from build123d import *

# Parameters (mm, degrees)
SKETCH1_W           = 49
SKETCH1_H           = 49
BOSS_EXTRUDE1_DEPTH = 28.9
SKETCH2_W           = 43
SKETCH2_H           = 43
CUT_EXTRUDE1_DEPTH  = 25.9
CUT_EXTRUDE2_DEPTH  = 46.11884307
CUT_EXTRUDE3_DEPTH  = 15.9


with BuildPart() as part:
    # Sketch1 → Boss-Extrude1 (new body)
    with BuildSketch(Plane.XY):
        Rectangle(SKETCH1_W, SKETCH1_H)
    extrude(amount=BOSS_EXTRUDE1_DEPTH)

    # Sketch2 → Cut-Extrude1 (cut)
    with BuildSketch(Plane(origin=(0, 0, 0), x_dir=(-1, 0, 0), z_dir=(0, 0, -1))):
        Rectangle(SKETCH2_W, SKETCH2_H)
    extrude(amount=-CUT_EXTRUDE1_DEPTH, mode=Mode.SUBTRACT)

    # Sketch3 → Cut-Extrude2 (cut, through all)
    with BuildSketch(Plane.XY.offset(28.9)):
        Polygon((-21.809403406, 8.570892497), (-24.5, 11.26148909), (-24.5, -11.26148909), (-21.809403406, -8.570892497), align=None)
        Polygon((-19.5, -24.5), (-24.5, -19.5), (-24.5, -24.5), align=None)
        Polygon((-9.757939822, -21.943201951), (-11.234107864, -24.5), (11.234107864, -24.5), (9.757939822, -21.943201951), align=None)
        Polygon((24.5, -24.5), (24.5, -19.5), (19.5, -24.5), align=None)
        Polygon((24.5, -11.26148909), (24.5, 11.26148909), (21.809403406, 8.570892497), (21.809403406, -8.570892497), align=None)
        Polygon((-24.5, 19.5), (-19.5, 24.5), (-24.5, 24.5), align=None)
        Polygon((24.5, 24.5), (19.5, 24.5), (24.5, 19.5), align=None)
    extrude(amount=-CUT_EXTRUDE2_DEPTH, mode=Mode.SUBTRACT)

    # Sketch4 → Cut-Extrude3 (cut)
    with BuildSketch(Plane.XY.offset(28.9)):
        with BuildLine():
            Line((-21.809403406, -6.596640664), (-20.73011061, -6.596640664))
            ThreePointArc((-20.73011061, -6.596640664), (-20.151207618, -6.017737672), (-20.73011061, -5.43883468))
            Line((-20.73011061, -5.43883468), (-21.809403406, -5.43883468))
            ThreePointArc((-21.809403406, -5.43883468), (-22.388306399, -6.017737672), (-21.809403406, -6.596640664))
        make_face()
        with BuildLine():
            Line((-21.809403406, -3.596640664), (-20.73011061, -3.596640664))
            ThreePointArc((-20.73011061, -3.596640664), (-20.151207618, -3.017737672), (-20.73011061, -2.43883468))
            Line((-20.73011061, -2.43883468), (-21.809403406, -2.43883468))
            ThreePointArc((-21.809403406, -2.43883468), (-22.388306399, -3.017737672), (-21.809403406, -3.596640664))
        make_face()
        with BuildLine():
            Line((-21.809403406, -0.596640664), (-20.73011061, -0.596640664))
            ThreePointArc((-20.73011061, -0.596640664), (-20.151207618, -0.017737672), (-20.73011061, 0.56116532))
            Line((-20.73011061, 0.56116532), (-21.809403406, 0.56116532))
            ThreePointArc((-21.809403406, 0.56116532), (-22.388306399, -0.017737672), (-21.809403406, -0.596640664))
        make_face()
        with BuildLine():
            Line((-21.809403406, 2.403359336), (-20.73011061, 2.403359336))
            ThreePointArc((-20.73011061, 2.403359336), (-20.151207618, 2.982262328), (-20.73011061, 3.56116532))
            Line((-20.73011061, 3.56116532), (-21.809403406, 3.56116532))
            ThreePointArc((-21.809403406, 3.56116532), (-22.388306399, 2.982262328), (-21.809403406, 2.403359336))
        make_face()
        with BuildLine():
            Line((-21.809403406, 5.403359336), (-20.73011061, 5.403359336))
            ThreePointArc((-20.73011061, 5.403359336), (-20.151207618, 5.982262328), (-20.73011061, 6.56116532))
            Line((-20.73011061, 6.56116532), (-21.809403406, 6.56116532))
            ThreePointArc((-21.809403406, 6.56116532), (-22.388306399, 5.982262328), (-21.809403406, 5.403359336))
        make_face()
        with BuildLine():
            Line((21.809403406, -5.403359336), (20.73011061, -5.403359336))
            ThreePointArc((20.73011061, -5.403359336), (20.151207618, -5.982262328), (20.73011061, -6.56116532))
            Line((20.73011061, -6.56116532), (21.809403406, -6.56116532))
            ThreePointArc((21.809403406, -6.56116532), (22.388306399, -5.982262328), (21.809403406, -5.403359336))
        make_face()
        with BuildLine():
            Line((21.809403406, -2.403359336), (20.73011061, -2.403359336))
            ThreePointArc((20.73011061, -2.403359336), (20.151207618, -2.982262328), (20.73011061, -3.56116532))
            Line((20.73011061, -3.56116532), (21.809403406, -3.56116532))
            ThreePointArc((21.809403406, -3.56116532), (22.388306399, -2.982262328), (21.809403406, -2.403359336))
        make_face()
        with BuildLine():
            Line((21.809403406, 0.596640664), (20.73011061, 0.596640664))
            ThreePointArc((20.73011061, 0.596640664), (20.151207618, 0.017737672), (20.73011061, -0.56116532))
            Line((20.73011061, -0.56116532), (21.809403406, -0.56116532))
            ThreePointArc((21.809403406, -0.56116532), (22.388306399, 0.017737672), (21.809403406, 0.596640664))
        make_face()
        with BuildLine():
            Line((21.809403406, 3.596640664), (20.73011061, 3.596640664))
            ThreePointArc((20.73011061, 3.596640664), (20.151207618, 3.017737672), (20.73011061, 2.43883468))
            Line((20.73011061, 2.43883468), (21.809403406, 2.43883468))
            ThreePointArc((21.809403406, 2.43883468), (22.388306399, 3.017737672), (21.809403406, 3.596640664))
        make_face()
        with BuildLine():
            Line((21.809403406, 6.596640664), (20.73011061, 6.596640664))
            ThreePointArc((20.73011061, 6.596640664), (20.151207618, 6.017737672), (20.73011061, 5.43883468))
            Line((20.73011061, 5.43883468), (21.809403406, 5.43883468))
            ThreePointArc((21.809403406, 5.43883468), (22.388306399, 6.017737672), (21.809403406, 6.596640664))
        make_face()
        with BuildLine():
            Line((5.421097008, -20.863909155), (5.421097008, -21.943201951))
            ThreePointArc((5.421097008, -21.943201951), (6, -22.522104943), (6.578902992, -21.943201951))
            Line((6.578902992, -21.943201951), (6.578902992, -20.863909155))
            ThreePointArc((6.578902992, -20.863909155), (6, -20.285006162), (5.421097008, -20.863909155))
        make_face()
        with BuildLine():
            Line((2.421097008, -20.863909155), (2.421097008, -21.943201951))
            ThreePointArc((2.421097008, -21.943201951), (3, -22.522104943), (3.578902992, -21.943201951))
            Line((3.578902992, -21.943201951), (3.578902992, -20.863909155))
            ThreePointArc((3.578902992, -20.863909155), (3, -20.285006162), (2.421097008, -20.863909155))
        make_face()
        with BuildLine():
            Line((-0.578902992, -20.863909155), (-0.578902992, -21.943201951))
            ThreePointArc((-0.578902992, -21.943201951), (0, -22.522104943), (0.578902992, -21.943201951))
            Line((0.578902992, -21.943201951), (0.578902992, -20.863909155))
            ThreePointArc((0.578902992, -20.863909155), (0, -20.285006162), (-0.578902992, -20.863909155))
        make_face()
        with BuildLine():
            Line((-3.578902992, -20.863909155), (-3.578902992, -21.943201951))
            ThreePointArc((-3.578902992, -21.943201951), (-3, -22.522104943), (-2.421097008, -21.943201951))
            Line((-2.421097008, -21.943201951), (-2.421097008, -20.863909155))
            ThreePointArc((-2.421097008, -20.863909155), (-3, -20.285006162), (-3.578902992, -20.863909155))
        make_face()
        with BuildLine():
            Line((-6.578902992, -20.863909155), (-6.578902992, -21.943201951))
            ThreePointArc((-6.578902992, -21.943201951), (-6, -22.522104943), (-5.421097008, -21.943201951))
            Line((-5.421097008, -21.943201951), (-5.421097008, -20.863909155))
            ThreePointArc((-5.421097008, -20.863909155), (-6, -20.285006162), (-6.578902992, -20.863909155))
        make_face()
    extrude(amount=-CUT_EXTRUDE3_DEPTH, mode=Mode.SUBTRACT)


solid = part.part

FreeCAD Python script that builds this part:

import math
import FreeCAD as App
import Part
import Sketcher
from FreeCAD import Vector
Q = App.Units.Quantity


def add_polygon(sketch, points):
    """Adds a closed chain of lines whose ends are joined by coincident constraints."""
    first, n = sketch.GeometryCount, len(points)
    for a, b in zip(points, points[1:] + points[:1]):
        sketch.addGeometry(Part.LineSegment(App.Vector(*a, 0), App.Vector(*b, 0)), False)
    for i in range(n):
        sketch.addConstraint(Sketcher.Constraint("Coincident", first + i, 2, first + (i + 1) % n, 1))

doc = App.newDocument("Part")
params = doc.addObject("Spreadsheet::Sheet", "Params")
for row, (alias, value) in enumerate([
    ("sketch1_width", "49 mm"),
    ("pad1_length", "28.9 mm"),
    ("sketch2_width", "43 mm"),
    ("pocket1_length", "25.9 mm"),
    ("sketch3_width", "5 mm"),
    ("pocket3_length", "15.9 mm"),
], start=1):
    params.set(f"A{row}", alias)
    params.set(f"B{row}", "=" + value)
    params.setAlias(f"B{row}", alias)

body = doc.addObject("PartDesign::Body", "Body")

# Sketch on XY plane
sketch1 = body.newObject("Sketcher::SketchObject", "Sketch")
sketch1.AttachmentSupport = (doc.getObject("XY_Plane"), [""])
sketch1.MapMode = "FlatFace"
add_polygon(sketch1, [(-24, 24), (-24, -24), (24, -24), (24, 24)])  # lines 0-3
sketch1.addConstraint(Sketcher.Constraint("Vertical", 0))
sketch1.addConstraint(Sketcher.Constraint("Horizontal", 1))
sketch1.addConstraint(Sketcher.Constraint("Vertical", 2))
sketch1.addConstraint(Sketcher.Constraint("Horizontal", 3))
sketch1.addConstraint(Sketcher.Constraint("Symmetric", 0, 2, 2, 2, -1, 1))
sketch1.addConstraint(Sketcher.Constraint("Equal", 3, 0))
sketch1.addConstraint(Sketcher.Constraint("DistanceX", 1, 1, 1, 2, Q("49 mm")))
sketch1.setExpression("Constraints[10]", "Params.sketch1_width")
pad1 = body.newObject("PartDesign::Pad", "Pad")
pad1.Profile = sketch1
pad1.setExpression("Length", "Params.pad1_length")

# Sketch on XY plane
sketch2 = body.newObject("Sketcher::SketchObject", "Sketch001")
sketch2.AttachmentSupport = (doc.getObject("XY_Plane"), [""])
sketch2.MapMode = "FlatFace"
add_polygon(sketch2, [(22, 22), (22, -22), (-22, -22), (-22, 22)])  # lines 0-3
sketch2.addConstraint(Sketcher.Constraint("Vertical", 0))
sketch2.addConstraint(Sketcher.Constraint("Horizontal", 1))
sketch2.addConstraint(Sketcher.Constraint("Vertical", 2))
sketch2.addConstraint(Sketcher.Constraint("Horizontal", 3))
sketch2.addConstraint(Sketcher.Constraint("Symmetric", 0, 2, 2, 2, -1, 1))
sketch2.addConstraint(Sketcher.Constraint("Equal", 3, 0))
sketch2.addConstraint(Sketcher.Constraint("DistanceX", 1, 2, 1, 1, Q("43 mm")))
sketch2.setExpression("Constraints[10]", "Params.sketch2_width")
pocket1 = body.newObject("PartDesign::Pocket", "Pocket")
pocket1.Profile = sketch2
pocket1.setExpression("Length", "Params.pocket1_length")
pocket1.Reversed = True

# Sketch on XY plane
sketch3 = body.newObject("Sketcher::SketchObject", "Sketch002")
sketch3.AttachmentSupport = (doc.getObject("XY_Plane"), [""])
sketch3.MapMode = "FlatFace"
sketch3.AttachmentOffset = App.Placement(Vector(0, 0, 28.9), App.Rotation())
add_polygon(sketch3, [(-21.8, 8.6), (-24.5, 11.3), (-24.5, -11.3), (-21.8, -8.6)])  # lines 0-3
add_polygon(sketch3, [(-19.5, -24.5), (-24.5, -19.5), (-24.5, -24.5)])  # lines 4-6
add_polygon(sketch3, [(-9.8, -21.9), (-11.2, -24.5), (11.2, -24.5), (9.8, -21.9)])  # lines 7-10
add_polygon(sketch3, [(24.5, -24.5), (24.5, -19.5), (19.5, -24.5)])  # lines 11-13
add_polygon(sketch3, [(24.5, -11.3), (24.5, 11.3), (21.8, 8.6), (21.8, -8.6)])  # lines 14-17
add_polygon(sketch3, [(-24.5, 19.5), (-19.5, 24.5), (-24.5, 24.5)])  # lines 18-20
add_polygon(sketch3, [(24.5, 24.5), (19.5, 24.5), (24.5, 19.5)])  # lines 21-23
sketch3.addConstraint(Sketcher.Constraint("Vertical", 1))
sketch3.addConstraint(Sketcher.Constraint("Vertical", 3))
sketch3.addConstraint(Sketcher.Constraint("Vertical", 5))
sketch3.addConstraint(Sketcher.Constraint("Horizontal", 6))
sketch3.addConstraint(Sketcher.Constraint("Horizontal", 8))
sketch3.addConstraint(Sketcher.Constraint("Horizontal", 10))
sketch3.addConstraint(Sketcher.Constraint("Vertical", 11))
sketch3.addConstraint(Sketcher.Constraint("Horizontal", 13))
sketch3.addConstraint(Sketcher.Constraint("Vertical", 14))
sketch3.addConstraint(Sketcher.Constraint("Vertical", 16))
sketch3.addConstraint(Sketcher.Constraint("Horizontal", 19))
sketch3.addConstraint(Sketcher.Constraint("Vertical", 20))
sketch3.addConstraint(Sketcher.Constraint("Horizontal", 21))
sketch3.addConstraint(Sketcher.Constraint("Vertical", 23))
sketch3.addConstraint(Sketcher.Constraint("Symmetric", 1, 2, 14, 2, -1, 1))
sketch3.addConstraint(Sketcher.Constraint("Symmetric", 2, 2, 15, 2, -1, 1))
sketch3.addConstraint(Sketcher.Constraint("Symmetric", 12, 2, 18, 2, -1, 1))
sketch3.addConstraint(Sketcher.Constraint("Symmetric", 11, 2, 20, 2, -1, 1))
sketch3.addConstraint(Sketcher.Constraint("Symmetric", 6, 2, 21, 2, -1, 1))
sketch3.addConstraint(Sketcher.Constraint("Symmetric", 4, 2, 22, 2, -1, 1))
sketch3.addConstraint(Sketcher.Constraint("Symmetric", 4, 2, 11, 2, -2))
sketch3.addConstraint(Sketcher.Constraint("Symmetric", 6, 2, 12, 2, -2))
sketch3.addConstraint(Sketcher.Constraint("Perpendicular", 0, 2))
sketch3.addConstraint(Sketcher.Constraint("Perpendicular", 2, 4))
sketch3.addConstraint(Sketcher.Constraint("Perpendicular", 4, 12))
sketch3.addConstraint(Sketcher.Constraint("Perpendicular", 15, 17))
sketch3.addConstraint(Sketcher.Constraint("Horizontal", 6, 2, 7, 2))
sketch3.addConstraint(Sketcher.Constraint("Horizontal", 0, 2, 14, 2))
sketch3.addConstraint(Sketcher.Constraint("Horizontal", 2, 2, 16, 2))
sketch3.addConstraint(Sketcher.Constraint("Vertical", 1, 2, 4, 2))
sketch3.addConstraint(Sketcher.Constraint("Equal", 7, 9))
sketch3.addConstraint(Sketcher.Constraint("DistanceX", 6, 1, 6, 2, Q("5 mm")))
sketch3.addConstraint(Sketcher.Constraint("Angle", 7, Q("-120 deg")))
sketch3.addConstraint(Sketcher.Constraint("DistanceX", 6, 2, 11, 2, Q("44 mm")))
sketch3.addConstraint(Sketcher.Constraint("DistanceY", 4, 2, -1, 1, Q("19.5 mm")))
sketch3.addConstraint(Sketcher.Constraint("DistanceX", 10, 2, 10, 1, Q("19.51588 mm")))
sketch3.addConstraint(Sketcher.Constraint("DistanceY", 1, 2, 1, 1, Q("22.522978 mm")))
sketch3.addConstraint(Sketcher.Constraint("DistanceY", 9, 2, -1, 1, Q("21.943202 mm")))
sketch3.addConstraint(Sketcher.Constraint("Distance", 0, Q("3.805078 mm")))
sketch3.addConstraint(Sketcher.Constraint("DistanceX", -1, 1, 9, 2, Q("9.75794 mm")))
sketch3.setExpression("Constraints[55]", "Params.sketch3_width")
pocket2 = body.newObject("PartDesign::Pocket", "Pocket001")
pocket2.Profile = sketch3
pocket2.Type = "ThroughAll"

# Sketch on XY plane
sketch4 = body.newObject("Sketcher::SketchObject", "Sketch003")
sketch4.AttachmentSupport = (doc.getObject("XY_Plane"), [""])
sketch4.MapMode = "FlatFace"
sketch4.AttachmentOffset = App.Placement(Vector(0, 0, 28.9), App.Rotation())
sketch4.addGeometry(Part.LineSegment(Vector(-21.8, -6.6, 0), Vector(-20.7, -6.6, 0)), False)
sketch4.addGeometry(Part.ArcOfCircle(Part.Circle(Vector(-20.7, -6, 0), Vector(0, 0, 1), 0.6), math.radians(-90), math.radians(90)), False)
sketch4.addGeometry(Part.LineSegment(Vector(-20.7, -5.4, 0), Vector(-21.8, -5.4, 0)), False)
sketch4.addGeometry(Part.ArcOfCircle(Part.Circle(Vector(-21.8, -6, 0), Vector(0, 0, 1), 0.6), math.radians(90), math.radians(270)), False)
sketch4.addGeometry(Part.LineSegment(Vector(-21.8, -3.6, 0), Vector(-20.7, -3.6, 0)), False)
sketch4.addGeometry(Part.ArcOfCircle(Part.Circle(Vector(-20.7, -3, 0), Vector(0, 0, 1), 0.6), math.radians(-90), math.radians(90)), False)
sketch4.addGeometry(Part.LineSegment(Vector(-20.7, -2.4, 0), Vector(-21.8, -2.4, 0)), False)
sketch4.addGeometry(Part.ArcOfCircle(Part.Circle(Vector(-21.8, -3, 0), Vector(0, 0, 1), 0.6), math.radians(90), math.radians(270)), False)
sketch4.addGeometry(Part.LineSegment(Vector(-21.8, -0.6, 0), Vector(-20.7, -0.6, 0)), False)
sketch4.addGeometry(Part.ArcOfCircle(Part.Circle(Vector(-20.7, 0, 0), Vector(0, 0, 1), 0.6), math.radians(-90), math.radians(90)), False)
sketch4.addGeometry(Part.LineSegment(Vector(-20.7, 0.6, 0), Vector(-21.8, 0.6, 0)), False)
sketch4.addGeometry(Part.ArcOfCircle(Part.Circle(Vector(-21.8, 0, 0), Vector(0, 0, 1), 0.6), math.radians(90), math.radians(270)), False)
sketch4.addGeometry(Part.LineSegment(Vector(-21.8, 2.4, 0), Vector(-20.7, 2.4, 0)), False)
sketch4.addGeometry(Part.ArcOfCircle(Part.Circle(Vector(-20.7, 3, 0), Vector(0, 0, 1), 0.6), math.radians(-90), math.radians(90)), False)
sketch4.addGeometry(Part.LineSegment(Vector(-20.7, 3.6, 0), Vector(-21.8, 3.6, 0)), False)
sketch4.addGeometry(Part.ArcOfCircle(Part.Circle(Vector(-21.8, 3, 0), Vector(0, 0, 1), 0.6), math.radians(90), math.radians(270)), False)
sketch4.addGeometry(Part.LineSegment(Vector(-21.8, 5.4, 0), Vector(-20.7, 5.4, 0)), False)
sketch4.addGeometry(Part.ArcOfCircle(Part.Circle(Vector(-20.7, 6, 0), Vector(0, 0, 1), 0.6), math.radians(-90), math.radians(90)), False)
sketch4.addGeometry(Part.LineSegment(Vector(-20.7, 6.6, 0), Vector(-21.8, 6.6, 0)), False)
sketch4.addGeometry(Part.ArcOfCircle(Part.Circle(Vector(-21.8, 6, 0), Vector(0, 0, 1), 0.6), math.radians(90), math.radians(270)), False)
sketch4.addGeometry(Part.LineSegment(Vector(21.8, -5.4, 0), Vector(20.7, -5.4, 0)), False)
sketch4.addGeometry(Part.ArcOfCircle(Part.Circle(Vector(20.7, -6, 0), Vector(0, 0, 1), 0.6), math.radians(90), math.radians(270)), False)
sketch4.addGeometry(Part.LineSegment(Vector(20.7, -6.6, 0), Vector(21.8, -6.6, 0)), False)
sketch4.addGeometry(Part.ArcOfCircle(Part.Circle(Vector(21.8, -6, 0), Vector(0, 0, 1), 0.6), math.radians(-90), math.radians(90)), False)
sketch4.addGeometry(Part.LineSegment(Vector(21.8, -2.4, 0), Vector(20.7, -2.4, 0)), False)
sketch4.addGeometry(Part.ArcOfCircle(Part.Circle(Vector(20.7, -3, 0), Vector(0, 0, 1), 0.6), math.radians(90), math.radians(270)), False)
sketch4.addGeometry(Part.LineSegment(Vector(20.7, -3.6, 0), Vector(21.8, -3.6, 0)), False)
sketch4.addGeometry(Part.ArcOfCircle(Part.Circle(Vector(21.8, -3, 0), Vector(0, 0, 1), 0.6), math.radians(-90), math.radians(90)), False)
sketch4.addGeometry(Part.LineSegment(Vector(21.8, 0.6, 0), Vector(20.7, 0.6, 0)), False)
sketch4.addGeometry(Part.ArcOfCircle(Part.Circle(Vector(20.7, 0, 0), Vector(0, 0, 1), 0.6), math.radians(90), math.radians(270)), False)
sketch4.addGeometry(Part.LineSegment(Vector(20.7, -0.6, 0), Vector(21.8, -0.6, 0)), False)
sketch4.addGeometry(Part.ArcOfCircle(Part.Circle(Vector(21.8, 0, 0), Vector(0, 0, 1), 0.6), math.radians(-90), math.radians(90)), False)
sketch4.addGeometry(Part.LineSegment(Vector(21.8, 3.6, 0), Vector(20.7, 3.6, 0)), False)
sketch4.addGeometry(Part.ArcOfCircle(Part.Circle(Vector(20.7, 3, 0), Vector(0, 0, 1), 0.6), math.radians(90), math.radians(270)), False)
sketch4.addGeometry(Part.LineSegment(Vector(20.7, 2.4, 0), Vector(21.8, 2.4, 0)), False)
sketch4.addGeometry(Part.ArcOfCircle(Part.Circle(Vector(21.8, 3, 0), Vector(0, 0, 1), 0.6), math.radians(-90), math.radians(90)), False)
sketch4.addGeometry(Part.LineSegment(Vector(21.8, 6.6, 0), Vector(20.7, 6.6, 0)), False)
sketch4.addGeometry(Part.ArcOfCircle(Part.Circle(Vector(20.7, 6, 0), Vector(0, 0, 1), 0.6), math.radians(90), math.radians(270)), False)
sketch4.addGeometry(Part.LineSegment(Vector(20.7, 5.4, 0), Vector(21.8, 5.4, 0)), False)
sketch4.addGeometry(Part.ArcOfCircle(Part.Circle(Vector(21.8, 6, 0), Vector(0, 0, 1), 0.6), math.radians(-90), math.radians(90)), False)
sketch4.addGeometry(Part.LineSegment(Vector(5.4, -20.9, 0), Vector(5.4, -21.9, 0)), False)
sketch4.addGeometry(Part.ArcOfCircle(Part.Circle(Vector(6, -21.9, 0), Vector(0, 0, 1), 0.6), math.radians(180), math.radians(360)), False)
sketch4.addGeometry(Part.LineSegment(Vector(6.6, -21.9, 0), Vector(6.6, -20.9, 0)), False)
sketch4.addGeometry(Part.ArcOfCircle(Part.Circle(Vector(6, -20.9, 0), Vector(0, 0, 1), 0.6), math.radians(0), math.radians(180)), False)
sketch4.addGeometry(Part.LineSegment(Vector(2.4, -20.9, 0), Vector(2.4, -21.9, 0)), False)
sketch4.addGeometry(Part.ArcOfCircle(Part.Circle(Vector(3, -21.9, 0), Vector(0, 0, 1), 0.6), math.radians(180), math.radians(360)), False)
sketch4.addGeometry(Part.LineSegment(Vector(3.6, -21.9, 0), Vector(3.6, -20.9, 0)), False)
sketch4.addGeometry(Part.ArcOfCircle(Part.Circle(Vector(3, -20.9, 0), Vector(0, 0, 1), 0.6), math.radians(0), math.radians(180)), False)
sketch4.addGeometry(Part.LineSegment(Vector(-0.6, -20.9, 0), Vector(-0.6, -21.9, 0)), False)
sketch4.addGeometry(Part.ArcOfCircle(Part.Circle(Vector(0, -21.9, 0), Vector(0, 0, 1), 0.6), math.radians(180), math.radians(360)), False)
sketch4.addGeometry(Part.LineSegment(Vector(0.6, -21.9, 0), Vector(0.6, -20.9, 0)), False)
sketch4.addGeometry(Part.ArcOfCircle(Part.Circle(Vector(0, -20.9, 0), Vector(0, 0, 1), 0.6), math.radians(0), math.radians(180)), False)
sketch4.addGeometry(Part.LineSegment(Vector(-3.6, -20.9, 0), Vector(-3.6, -21.9, 0)), False)
sketch4.addGeometry(Part.ArcOfCircle(Part.Circle(Vector(-3, -21.9, 0), Vector(0, 0, 1), 0.6), math.radians(180), math.radians(360)), False)
sketch4.addGeometry(Part.LineSegment(Vector(-2.4, -21.9, 0), Vector(-2.4, -20.9, 0)), False)
sketch4.addGeometry(Part.ArcOfCircle(Part.Circle(Vector(-3, -20.9, 0), Vector(0, 0, 1), 0.6), math.radians(0), math.radians(180)), False)
sketch4.addGeometry(Part.LineSegment(Vector(-6.6, -20.9, 0), Vector(-6.6, -21.9, 0)), False)
sketch4.addGeometry(Part.ArcOfCircle(Part.Circle(Vector(-6, -21.9, 0), Vector(0, 0, 1), 0.6), math.radians(180), math.radians(360)), False)
sketch4.addGeometry(Part.LineSegment(Vector(-5.4, -21.9, 0), Vector(-5.4, -20.9, 0)), False)
sketch4.addGeometry(Part.ArcOfCircle(Part.Circle(Vector(-6, -20.9, 0), Vector(0, 0, 1), 0.6), math.radians(0), math.radians(180)), False)
sketch4.addConstraint(Sketcher.Constraint("Tangent", 0, 2, 1, 1))
sketch4.addConstraint(Sketcher.Constraint("Tangent", 1, 2, 2, 1))
sketch4.addConstraint(Sketcher.Constraint("Tangent", 2, 2, 3, 1))
sketch4.addConstraint(Sketcher.Constraint("Tangent", 3, 2, 0, 1))
sketch4.addConstraint(Sketcher.Constraint("Tangent", 4, 2, 5, 1))
sketch4.addConstraint(Sketcher.Constraint("Tangent", 5, 2, 6, 1))
sketch4.addConstraint(Sketcher.Constraint("Tangent", 6, 2, 7, 1))
sketch4.addConstraint(Sketcher.Constraint("Tangent", 7, 2, 4, 1))
sketch4.addConstraint(Sketcher.Constraint("Tangent", 8, 2, 9, 1))
sketch4.addConstraint(Sketcher.Constraint("Tangent", 9, 2, 10, 1))
sketch4.addConstraint(Sketcher.Constraint("Tangent", 10, 2, 11, 1))
sketch4.addConstraint(Sketcher.Constraint("Tangent", 11, 2, 8, 1))
sketch4.addConstraint(Sketcher.Constraint("Tangent", 12, 2, 13, 1))
sketch4.addConstraint(Sketcher.Constraint("Tangent", 13, 2, 14, 1))
sketch4.addConstraint(Sketcher.Constraint("Tangent", 14, 2, 15, 1))
sketch4.addConstraint(Sketcher.Constraint("Tangent", 15, 2, 12, 1))
sketch4.addConstraint(Sketcher.Constraint("Tangent", 16, 2, 17, 1))
sketch4.addConstraint(Sketcher.Constraint("Tangent", 17, 2, 18, 1))
sketch4.addConstraint(Sketcher.Constraint("Tangent", 18, 2, 19, 1))
sketch4.addConstraint(Sketcher.Constraint("Tangent", 19, 2, 16, 1))
sketch4.addConstraint(Sketcher.Constraint("Tangent", 20, 2, 21, 1))
sketch4.addConstraint(Sketcher.Constraint("Tangent", 21, 2, 22, 1))
sketch4.addConstraint(Sketcher.Constraint("Tangent", 22, 2, 23, 1))
sketch4.addConstraint(Sketcher.Constraint("Tangent", 23, 2, 20, 1))
sketch4.addConstraint(Sketcher.Constraint("Tangent", 24, 2, 25, 1))
sketch4.addConstraint(Sketcher.Constraint("Tangent", 25, 2, 26, 1))
sketch4.addConstraint(Sketcher.Constraint("Tangent", 26, 2, 27, 1))
sketch4.addConstraint(Sketcher.Constraint("Tangent", 27, 2, 24, 1))
sketch4.addConstraint(Sketcher.Constraint("Tangent", 28, 2, 29, 1))
sketch4.addConstraint(Sketcher.Constraint("Tangent", 29, 2, 30, 1))
sketch4.addConstraint(Sketcher.Constraint("Tangent", 30, 2, 31, 1))
sketch4.addConstraint(Sketcher.Constraint("Tangent", 31, 2, 28, 1))
sketch4.addConstraint(Sketcher.Constraint("Tangent", 32, 2, 33, 1))
sketch4.addConstraint(Sketcher.Constraint("Tangent", 33, 2, 34, 1))
sketch4.addConstraint(Sketcher.Constraint("Tangent", 34, 2, 35, 1))
sketch4.addConstraint(Sketcher.Constraint("Tangent", 35, 2, 32, 1))
sketch4.addConstraint(Sketcher.Constraint("Tangent", 36, 2, 37, 1))
sketch4.addConstraint(Sketcher.Constraint("Tangent", 37, 2, 38, 1))
sketch4.addConstraint(Sketcher.Constraint("Tangent", 38, 2, 39, 1))
sketch4.addConstraint(Sketcher.Constraint("Tangent", 39, 2, 36, 1))
sketch4.addConstraint(Sketcher.Constraint("Tangent", 40, 2, 41, 1))
sketch4.addConstraint(Sketcher.Constraint("Tangent", 41, 2, 42, 1))
sketch4.addConstraint(Sketcher.Constraint("Tangent", 42, 2, 43, 1))
sketch4.addConstraint(Sketcher.Constraint("Tangent", 43, 2, 40, 1))
sketch4.addConstraint(Sketcher.Constraint("Tangent", 44, 2, 45, 1))
sketch4.addConstraint(Sketcher.Constraint("Tangent", 45, 2, 46, 1))
sketch4.addConstraint(Sketcher.Constraint("Tangent", 46, 2, 47, 1))
sketch4.addConstraint(Sketcher.Constraint("Tangent", 47, 2, 44, 1))
sketch4.addConstraint(Sketcher.Constraint("Tangent", 48, 2, 49, 1))
sketch4.addConstraint(Sketcher.Constraint("Tangent", 49, 2, 50, 1))
sketch4.addConstraint(Sketcher.Constraint("Tangent", 50, 2, 51, 1))
sketch4.addConstraint(Sketcher.Constraint("Tangent", 51, 2, 48, 1))
sketch4.addConstraint(Sketcher.Constraint("Tangent", 52, 2, 53, 1))
sketch4.addConstraint(Sketcher.Constraint("Tangent", 53, 2, 54, 1))
sketch4.addConstraint(Sketcher.Constraint("Tangent", 54, 2, 55, 1))
sketch4.addConstraint(Sketcher.Constraint("Tangent", 55, 2, 52, 1))
sketch4.addConstraint(Sketcher.Constraint("Tangent", 56, 2, 57, 1))
sketch4.addConstraint(Sketcher.Constraint("Tangent", 57, 2, 58, 1))
sketch4.addConstraint(Sketcher.Constraint("Tangent", 58, 2, 59, 1))
sketch4.addConstraint(Sketcher.Constraint("Tangent", 59, 2, 56, 1))
sketch4.addConstraint(Sketcher.Constraint("Horizontal", 0))
sketch4.addConstraint(Sketcher.Constraint("Horizontal", 2))
sketch4.addConstraint(Sketcher.Constraint("Horizontal", 4))
sketch4.addConstraint(Sketcher.Constraint("Horizontal", 6))
sketch4.addConstraint(Sketcher.Constraint("Horizontal", 8))
sketch4.addConstraint(Sketcher.Constraint("Horizontal", 10))
sketch4.addConstraint(Sketcher.Constraint("Horizontal", 12))
sketch4.addConstraint(Sketcher.Constraint("Horizontal", 14))
sketch4.addConstraint(Sketcher.Constraint("Horizontal", 16))
sketch4.addConstraint(Sketcher.Constraint("Horizontal", 18))
sketch4.addConstraint(Sketcher.Constraint("Horizontal", 20))
sketch4.addConstraint(Sketcher.Constraint("Horizontal", 22))
sketch4.addConstraint(Sketcher.Constraint("Horizontal", 24))
sketch4.addConstraint(Sketcher.Constraint("Horizontal", 26))
sketch4.addConstraint(Sketcher.Constraint("Horizontal", 28))
sketch4.addConstraint(Sketcher.Constraint("Horizontal", 30))
sketch4.addConstraint(Sketcher.Constraint("Horizontal", 32))
sketch4.addConstraint(Sketcher.Constraint("Horizontal", 34))
sketch4.addConstraint(Sketcher.Constraint("Horizontal", 36))
sketch4.addConstraint(Sketcher.Constraint("Horizontal", 38))
sketch4.addConstraint(Sketcher.Constraint("Vertical", 40))
sketch4.addConstraint(Sketcher.Constraint("Vertical", 42))
sketch4.addConstraint(Sketcher.Constraint("Vertical", 44))
sketch4.addConstraint(Sketcher.Constraint("Vertical", 46))
sketch4.addConstraint(Sketcher.Constraint("Vertical", 48))
sketch4.addConstraint(Sketcher.Constraint("Vertical", 50))
sketch4.addConstraint(Sketcher.Constraint("Vertical", 52))
sketch4.addConstraint(Sketcher.Constraint("Vertical", 54))
sketch4.addConstraint(Sketcher.Constraint("Vertical", 56))
sketch4.addConstraint(Sketcher.Constraint("Vertical", 58))
sketch4.addConstraint(Sketcher.Constraint("Equal", 3, 5))
sketch4.addConstraint(Sketcher.Constraint("Equal", 7, 9))
sketch4.addConstraint(Sketcher.Constraint("Equal", 11, 13))
sketch4.addConstraint(Sketcher.Constraint("Equal", 15, 17))
sketch4.addConstraint(Sketcher.Constraint("Equal", 19, 21))
sketch4.addConstraint(Sketcher.Constraint("Equal", 23, 25))
sketch4.addConstraint(Sketcher.Constraint("Equal", 27, 29))
sketch4.addConstraint(Sketcher.Constraint("Equal", 31, 33))
sketch4.addConstraint(Sketcher.Constraint("Equal", 35, 37))
sketch4.addConstraint(Sketcher.Constraint("Equal", 39, 41))
sketch4.addConstraint(Sketcher.Constraint("Equal", 43, 45))
sketch4.addConstraint(Sketcher.Constraint("Equal", 47, 49))
sketch4.addConstraint(Sketcher.Constraint("Equal", 51, 53))
sketch4.addConstraint(Sketcher.Constraint("Equal", 55, 57))
sketch4.addConstraint(Sketcher.Constraint("Symmetric", 17, 3, 21, 3, -1, 1))
sketch4.addConstraint(Sketcher.Constraint("Symmetric", 13, 3, 25, 3, -1, 1))
sketch4.addConstraint(Sketcher.Constraint("Symmetric", 9, 3, 29, 3, -1, 1))
sketch4.addConstraint(Sketcher.Constraint("Symmetric", 5, 3, 33, 3, -1, 1))
sketch4.addConstraint(Sketcher.Constraint("Symmetric", 1, 3, 37, 3, -1, 1))
sketch4.addConstraint(Sketcher.Constraint("Symmetric", 45, 3, 53, 3, -2))
sketch4.addConstraint(Sketcher.Constraint("Symmetric", 41, 3, 57, 3, -2))
sketch4.addConstraint(Sketcher.Constraint("PointOnObject", 49, 3, -2))
sketch4.addConstraint(Sketcher.Constraint("Horizontal", 41, 3, 45, 3))
sketch4.addConstraint(Sketcher.Constraint("Horizontal", 43, 3, 47, 3))
sketch4.addConstraint(Sketcher.Constraint("Horizontal", 45, 3, 49, 3))
sketch4.addConstraint(Sketcher.Constraint("Horizontal", 47, 3, 51, 3))
sketch4.addConstraint(Sketcher.Constraint("Horizontal", 51, 3, 55, 3))
sketch4.addConstraint(Sketcher.Constraint("Horizontal", 55, 3, 59, 3))
sketch4.addConstraint(Sketcher.Constraint("Vertical", 1, 3, 5, 3))
sketch4.addConstraint(Sketcher.Constraint("Vertical", 3, 3, 7, 3))
sketch4.addConstraint(Sketcher.Constraint("Vertical", 5, 3, 9, 3))
sketch4.addConstraint(Sketcher.Constraint("Vertical", 7, 3, 11, 3))
sketch4.addConstraint(Sketcher.Constraint("Vertical", 9, 3, 13, 3))
sketch4.addConstraint(Sketcher.Constraint("Vertical", 11, 3, 15, 3))
sketch4.addConstraint(Sketcher.Constraint("Vertical", 13, 3, 17, 3))
sketch4.addConstraint(Sketcher.Constraint("Vertical", 15, 3, 19, 3))
sketch4.addConstraint(Sketcher.Constraint("Vertical", 23, 3, 27, 3))
sketch4.addConstraint(Sketcher.Constraint("Vertical", 27, 3, 31, 3))
sketch4.addConstraint(Sketcher.Constraint("Vertical", 31, 3, 35, 3))
sketch4.addConstraint(Sketcher.Constraint("Vertical", 35, 3, 39, 3))
sketch4.addConstraint(Sketcher.Constraint("Equal", 18, 20))
sketch4.addConstraint(Sketcher.Constraint("Equal", 38, 40))
sketch4.addConstraint(Sketcher.Constraint("DistanceX", -1, 1, 41, 3, Q("6 mm")))
sketch4.addConstraint(Sketcher.Constraint("DistanceX", -1, 1, 45, 3, Q("3 mm")))
sketch4.addConstraint(Sketcher.Constraint("Radius", 1, Q("0.578903 mm")))
sketch4.addConstraint(Sketcher.Constraint("DistanceY", 41, 3, -1, 1, Q("21.943202 mm")))
sketch4.addConstraint(Sketcher.Constraint("DistanceX", 0, 1, 0, 2, Q("1.079293 mm")))
sketch4.addConstraint(Sketcher.Constraint("DistanceX", 1, 3, -1, 1, Q("20.730111 mm")))
sketch4.addConstraint(Sketcher.Constraint("DistanceY", 0, 2, -1, 1, Q("6.596641 mm")))
sketch4.addConstraint(Sketcher.Constraint("DistanceY", 4, 2, -1, 1, Q("3.596641 mm")))
sketch4.addConstraint(Sketcher.Constraint("DistanceY", 8, 2, -1, 1, Q("0.596641 mm")))
sketch4.addConstraint(Sketcher.Constraint("DistanceY", -1, 1, 12, 2, Q("2.403359 mm")))
sketch4.addConstraint(Sketcher.Constraint("DistanceY", -1, 1, 16, 2, Q("5.403359 mm")))
pocket3 = body.newObject("PartDesign::Pocket", "Pocket002")
pocket3.Profile = sketch4
pocket3.setExpression("Length", "Params.pocket3_length")

doc.recompute()
